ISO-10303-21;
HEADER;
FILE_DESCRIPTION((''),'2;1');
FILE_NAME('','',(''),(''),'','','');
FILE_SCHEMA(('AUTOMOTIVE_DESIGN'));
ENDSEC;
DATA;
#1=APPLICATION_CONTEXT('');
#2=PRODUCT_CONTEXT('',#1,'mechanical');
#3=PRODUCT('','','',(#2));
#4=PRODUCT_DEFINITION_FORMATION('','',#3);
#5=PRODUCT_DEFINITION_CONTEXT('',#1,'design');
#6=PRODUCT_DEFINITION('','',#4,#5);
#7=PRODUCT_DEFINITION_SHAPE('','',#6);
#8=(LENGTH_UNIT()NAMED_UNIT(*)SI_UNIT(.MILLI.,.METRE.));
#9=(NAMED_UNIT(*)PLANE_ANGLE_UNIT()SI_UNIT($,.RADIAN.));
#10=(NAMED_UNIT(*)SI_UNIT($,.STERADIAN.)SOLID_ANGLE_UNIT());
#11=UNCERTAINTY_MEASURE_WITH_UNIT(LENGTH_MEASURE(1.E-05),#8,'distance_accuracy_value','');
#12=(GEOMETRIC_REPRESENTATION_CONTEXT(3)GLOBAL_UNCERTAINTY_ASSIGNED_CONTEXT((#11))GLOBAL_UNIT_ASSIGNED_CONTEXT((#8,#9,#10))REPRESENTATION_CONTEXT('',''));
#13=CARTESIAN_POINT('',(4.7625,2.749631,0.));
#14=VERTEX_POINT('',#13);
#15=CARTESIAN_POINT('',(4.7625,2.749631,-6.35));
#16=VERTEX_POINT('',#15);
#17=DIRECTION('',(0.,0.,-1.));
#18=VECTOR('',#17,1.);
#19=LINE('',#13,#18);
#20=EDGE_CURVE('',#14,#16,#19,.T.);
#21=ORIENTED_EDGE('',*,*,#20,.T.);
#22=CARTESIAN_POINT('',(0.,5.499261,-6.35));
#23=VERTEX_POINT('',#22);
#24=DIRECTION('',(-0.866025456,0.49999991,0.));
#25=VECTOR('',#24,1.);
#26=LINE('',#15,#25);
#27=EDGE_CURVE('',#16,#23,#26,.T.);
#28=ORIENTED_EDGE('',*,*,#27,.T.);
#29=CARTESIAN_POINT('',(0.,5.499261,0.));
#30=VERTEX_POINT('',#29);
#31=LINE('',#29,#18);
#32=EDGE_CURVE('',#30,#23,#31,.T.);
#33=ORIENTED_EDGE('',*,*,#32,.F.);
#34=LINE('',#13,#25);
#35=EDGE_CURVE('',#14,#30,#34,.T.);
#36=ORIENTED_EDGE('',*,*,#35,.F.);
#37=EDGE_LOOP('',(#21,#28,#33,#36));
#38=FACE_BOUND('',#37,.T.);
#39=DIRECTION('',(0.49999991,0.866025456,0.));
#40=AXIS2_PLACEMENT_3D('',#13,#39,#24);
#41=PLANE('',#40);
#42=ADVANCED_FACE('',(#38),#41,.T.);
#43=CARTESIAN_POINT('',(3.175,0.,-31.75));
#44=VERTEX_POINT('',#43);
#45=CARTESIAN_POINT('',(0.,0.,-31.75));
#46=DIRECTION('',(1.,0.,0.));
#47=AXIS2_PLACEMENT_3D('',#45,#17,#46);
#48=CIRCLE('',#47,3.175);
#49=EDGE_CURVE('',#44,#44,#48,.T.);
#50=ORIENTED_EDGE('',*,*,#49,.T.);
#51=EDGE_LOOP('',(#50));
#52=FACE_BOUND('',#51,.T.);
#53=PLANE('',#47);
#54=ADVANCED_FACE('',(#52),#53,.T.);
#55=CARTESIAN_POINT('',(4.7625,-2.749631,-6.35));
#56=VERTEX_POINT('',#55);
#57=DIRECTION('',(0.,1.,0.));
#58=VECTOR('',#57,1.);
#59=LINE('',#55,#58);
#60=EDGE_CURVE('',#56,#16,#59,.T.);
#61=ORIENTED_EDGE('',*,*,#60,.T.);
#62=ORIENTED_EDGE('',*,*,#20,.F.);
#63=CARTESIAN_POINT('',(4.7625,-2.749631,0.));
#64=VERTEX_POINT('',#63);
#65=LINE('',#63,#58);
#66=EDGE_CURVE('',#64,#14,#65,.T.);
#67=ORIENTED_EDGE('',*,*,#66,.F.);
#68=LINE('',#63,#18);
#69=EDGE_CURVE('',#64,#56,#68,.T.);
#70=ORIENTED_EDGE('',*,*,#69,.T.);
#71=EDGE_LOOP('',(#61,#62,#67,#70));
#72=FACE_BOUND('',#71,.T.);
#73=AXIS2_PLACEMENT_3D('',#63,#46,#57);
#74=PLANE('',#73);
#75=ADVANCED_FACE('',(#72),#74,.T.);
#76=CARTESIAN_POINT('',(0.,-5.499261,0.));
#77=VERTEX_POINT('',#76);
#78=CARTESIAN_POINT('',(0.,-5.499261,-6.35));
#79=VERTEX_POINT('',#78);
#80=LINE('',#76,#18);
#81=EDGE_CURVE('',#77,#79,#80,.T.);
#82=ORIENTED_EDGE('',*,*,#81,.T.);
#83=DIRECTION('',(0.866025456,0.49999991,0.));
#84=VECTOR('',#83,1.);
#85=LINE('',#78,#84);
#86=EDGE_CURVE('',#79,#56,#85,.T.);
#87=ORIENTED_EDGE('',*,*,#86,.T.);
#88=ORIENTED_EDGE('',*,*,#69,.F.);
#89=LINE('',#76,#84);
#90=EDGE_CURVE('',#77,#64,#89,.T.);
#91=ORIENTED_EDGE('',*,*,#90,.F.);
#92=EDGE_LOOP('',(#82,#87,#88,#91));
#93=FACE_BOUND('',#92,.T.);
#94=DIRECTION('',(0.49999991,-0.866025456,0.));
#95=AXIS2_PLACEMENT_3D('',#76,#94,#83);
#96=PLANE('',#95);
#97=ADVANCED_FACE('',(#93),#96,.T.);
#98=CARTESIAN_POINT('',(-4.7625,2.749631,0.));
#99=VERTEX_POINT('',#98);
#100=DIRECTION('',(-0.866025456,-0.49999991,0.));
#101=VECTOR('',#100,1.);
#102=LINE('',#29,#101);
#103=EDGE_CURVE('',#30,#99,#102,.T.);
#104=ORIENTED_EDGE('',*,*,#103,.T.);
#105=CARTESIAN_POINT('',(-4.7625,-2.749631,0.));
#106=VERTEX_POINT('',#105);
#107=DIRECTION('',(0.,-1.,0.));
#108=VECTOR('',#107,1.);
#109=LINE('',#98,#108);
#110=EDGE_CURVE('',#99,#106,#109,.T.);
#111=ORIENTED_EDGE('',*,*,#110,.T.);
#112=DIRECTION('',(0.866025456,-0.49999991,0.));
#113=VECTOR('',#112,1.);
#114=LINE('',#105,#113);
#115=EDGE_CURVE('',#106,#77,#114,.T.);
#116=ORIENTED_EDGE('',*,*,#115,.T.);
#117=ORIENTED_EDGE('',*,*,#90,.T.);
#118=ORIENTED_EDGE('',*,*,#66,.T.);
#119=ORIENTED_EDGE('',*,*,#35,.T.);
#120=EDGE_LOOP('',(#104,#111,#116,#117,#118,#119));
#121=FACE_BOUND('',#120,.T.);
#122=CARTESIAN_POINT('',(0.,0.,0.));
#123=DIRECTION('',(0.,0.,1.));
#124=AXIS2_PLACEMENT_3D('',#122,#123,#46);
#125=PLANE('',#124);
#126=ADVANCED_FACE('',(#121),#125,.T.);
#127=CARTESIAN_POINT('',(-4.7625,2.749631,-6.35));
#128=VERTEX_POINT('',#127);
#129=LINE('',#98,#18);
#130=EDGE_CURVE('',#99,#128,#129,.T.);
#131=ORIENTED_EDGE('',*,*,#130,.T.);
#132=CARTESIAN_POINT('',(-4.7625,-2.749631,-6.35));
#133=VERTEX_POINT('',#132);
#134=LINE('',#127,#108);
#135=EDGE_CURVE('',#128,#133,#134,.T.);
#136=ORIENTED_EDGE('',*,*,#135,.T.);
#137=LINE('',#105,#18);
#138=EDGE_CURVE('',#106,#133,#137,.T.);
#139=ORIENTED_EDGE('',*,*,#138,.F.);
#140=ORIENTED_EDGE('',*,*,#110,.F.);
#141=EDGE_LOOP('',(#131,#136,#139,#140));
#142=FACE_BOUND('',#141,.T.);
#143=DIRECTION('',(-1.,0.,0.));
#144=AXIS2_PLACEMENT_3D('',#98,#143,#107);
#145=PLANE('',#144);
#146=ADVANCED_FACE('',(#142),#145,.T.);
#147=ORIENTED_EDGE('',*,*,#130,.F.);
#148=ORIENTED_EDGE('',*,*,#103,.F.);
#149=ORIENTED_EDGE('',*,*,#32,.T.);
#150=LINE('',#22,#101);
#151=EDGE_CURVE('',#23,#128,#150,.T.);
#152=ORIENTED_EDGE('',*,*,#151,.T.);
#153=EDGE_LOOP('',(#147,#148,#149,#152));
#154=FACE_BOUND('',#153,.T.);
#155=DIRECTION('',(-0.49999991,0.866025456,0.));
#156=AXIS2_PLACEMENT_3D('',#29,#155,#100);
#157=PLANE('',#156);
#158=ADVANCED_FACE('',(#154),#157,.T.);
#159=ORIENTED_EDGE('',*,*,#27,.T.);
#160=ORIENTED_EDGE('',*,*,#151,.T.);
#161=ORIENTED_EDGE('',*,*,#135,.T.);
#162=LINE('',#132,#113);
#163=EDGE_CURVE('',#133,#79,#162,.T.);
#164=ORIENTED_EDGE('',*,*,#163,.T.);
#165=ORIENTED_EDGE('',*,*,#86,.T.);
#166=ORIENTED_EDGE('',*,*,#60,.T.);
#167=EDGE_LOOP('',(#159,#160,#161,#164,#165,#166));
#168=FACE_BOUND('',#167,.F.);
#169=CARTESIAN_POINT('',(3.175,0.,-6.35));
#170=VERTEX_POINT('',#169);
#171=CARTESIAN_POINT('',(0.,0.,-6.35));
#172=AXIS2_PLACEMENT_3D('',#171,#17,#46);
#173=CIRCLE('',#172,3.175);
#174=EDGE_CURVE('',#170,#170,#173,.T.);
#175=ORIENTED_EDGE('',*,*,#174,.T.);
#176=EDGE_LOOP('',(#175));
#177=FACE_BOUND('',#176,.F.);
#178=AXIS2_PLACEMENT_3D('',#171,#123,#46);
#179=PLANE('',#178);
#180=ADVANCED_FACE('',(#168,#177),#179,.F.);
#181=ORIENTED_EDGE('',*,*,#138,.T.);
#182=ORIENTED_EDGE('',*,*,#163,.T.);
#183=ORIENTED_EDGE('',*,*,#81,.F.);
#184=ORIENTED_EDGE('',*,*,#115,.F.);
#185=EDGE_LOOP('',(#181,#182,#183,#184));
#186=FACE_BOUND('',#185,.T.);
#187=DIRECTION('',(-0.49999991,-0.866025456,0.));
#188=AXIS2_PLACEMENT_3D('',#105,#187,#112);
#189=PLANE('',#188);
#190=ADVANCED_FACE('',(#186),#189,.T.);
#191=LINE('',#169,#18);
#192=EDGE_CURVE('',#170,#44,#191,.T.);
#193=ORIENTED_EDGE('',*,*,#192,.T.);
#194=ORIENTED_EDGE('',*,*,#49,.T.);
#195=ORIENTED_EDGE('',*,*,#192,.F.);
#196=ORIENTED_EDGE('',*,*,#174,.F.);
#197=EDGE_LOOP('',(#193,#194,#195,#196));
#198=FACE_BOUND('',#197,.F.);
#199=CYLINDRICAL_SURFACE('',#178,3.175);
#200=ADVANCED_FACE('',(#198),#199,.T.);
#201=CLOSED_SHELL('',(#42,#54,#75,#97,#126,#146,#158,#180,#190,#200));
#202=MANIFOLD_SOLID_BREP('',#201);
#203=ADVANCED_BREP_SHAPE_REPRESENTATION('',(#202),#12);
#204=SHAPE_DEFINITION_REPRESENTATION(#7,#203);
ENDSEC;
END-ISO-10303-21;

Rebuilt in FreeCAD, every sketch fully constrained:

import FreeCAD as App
import Part
import Sketcher
Q = App.Units.Quantity


def add_polygon(sketch, points):
    """Adds a closed chain of lines whose ends are joined by coincident constraints."""
    first, n = sketch.GeometryCount, len(points)
    for a, b in zip(points, points[1:] + points[:1]):
        sketch.addGeometry(Part.LineSegment(App.Vector(*a, 0), App.Vector(*b, 0)), False)
    for i in range(n):
        sketch.addConstraint(Sketcher.Constraint("Coincident", first + i, 2, first + (i + 1) % n, 1))

doc = App.newDocument("Part")
body = doc.addObject("PartDesign::Body", "Body")

# Sketch on XY plane
sketch1 = body.newObject("Sketcher::SketchObject", "Sketch")
sketch1.AttachmentSupport = (doc.getObject("XY_Plane"), [""])
sketch1.MapMode = "FlatFace"
add_polygon(sketch1, [(5, 3), (0, 5), (-5, 3), (-5, -3), (0, -5), (5, -3)])  # lines 0-5
sketch1.addConstraint(Sketcher.Constraint("Vertical", 2))
sketch1.addConstraint(Sketcher.Constraint("Vertical", 5))
sketch1.addConstraint(Sketcher.Constraint("Symmetric", 0, 2, 3, 2, -1, 1))
sketch1.addConstraint(Sketcher.Constraint("Symmetric", 1, 2, 4, 2, -1, 1))
sketch1.addConstraint(Sketcher.Constraint("PointOnObject", 0, 2, -2))
sketch1.addConstraint(Sketcher.Constraint("Parallel", 0, 3))
sketch1.addConstraint(Sketcher.Constraint("Horizontal", 2, 2, 4, 2))
sketch1.addConstraint(Sketcher.Constraint("Angle", 0, Q("150.000006 deg")))
sketch1.addConstraint(Sketcher.Constraint("DistanceX", 1, 2, -1, 1, Q("0.1875 in")))
sketch1.addConstraint(Sketcher.Constraint("DistanceY", 2, 2, 2, 1, 5.499262))
pad1 = body.newObject("PartDesign::Pad", "Pad")
pad1.Profile = sketch1
pad1.Length = Q("0.25 in")
pad1.Reversed = True

# Sketch on XY plane
sketch2 = body.newObject("Sketcher::SketchObject", "Sketch001")
sketch2.AttachmentSupport = (doc.getObject("XY_Plane"), [""])
sketch2.MapMode = "FlatFace"
sketch2.AttachmentOffset = App.Placement(App.Vector(0, 0, -0.25 * 25.4), App.Rotation())
sketch2.addGeometry(Part.Circle(App.Vector(0, 0, 0), App.Vector(0, 0, 1), 3.2), False)
sketch2.addConstraint(Sketcher.Constraint("Coincident", 0, 3, -1, 1))
sketch2.addConstraint(Sketcher.Constraint("Diameter", 0, Q("0.25 in")))
pad2 = body.newObject("PartDesign::Pad", "Pad001")
pad2.Profile = sketch2
pad2.Length = Q("1 in")
pad2.Reversed = True

doc.recompute()
